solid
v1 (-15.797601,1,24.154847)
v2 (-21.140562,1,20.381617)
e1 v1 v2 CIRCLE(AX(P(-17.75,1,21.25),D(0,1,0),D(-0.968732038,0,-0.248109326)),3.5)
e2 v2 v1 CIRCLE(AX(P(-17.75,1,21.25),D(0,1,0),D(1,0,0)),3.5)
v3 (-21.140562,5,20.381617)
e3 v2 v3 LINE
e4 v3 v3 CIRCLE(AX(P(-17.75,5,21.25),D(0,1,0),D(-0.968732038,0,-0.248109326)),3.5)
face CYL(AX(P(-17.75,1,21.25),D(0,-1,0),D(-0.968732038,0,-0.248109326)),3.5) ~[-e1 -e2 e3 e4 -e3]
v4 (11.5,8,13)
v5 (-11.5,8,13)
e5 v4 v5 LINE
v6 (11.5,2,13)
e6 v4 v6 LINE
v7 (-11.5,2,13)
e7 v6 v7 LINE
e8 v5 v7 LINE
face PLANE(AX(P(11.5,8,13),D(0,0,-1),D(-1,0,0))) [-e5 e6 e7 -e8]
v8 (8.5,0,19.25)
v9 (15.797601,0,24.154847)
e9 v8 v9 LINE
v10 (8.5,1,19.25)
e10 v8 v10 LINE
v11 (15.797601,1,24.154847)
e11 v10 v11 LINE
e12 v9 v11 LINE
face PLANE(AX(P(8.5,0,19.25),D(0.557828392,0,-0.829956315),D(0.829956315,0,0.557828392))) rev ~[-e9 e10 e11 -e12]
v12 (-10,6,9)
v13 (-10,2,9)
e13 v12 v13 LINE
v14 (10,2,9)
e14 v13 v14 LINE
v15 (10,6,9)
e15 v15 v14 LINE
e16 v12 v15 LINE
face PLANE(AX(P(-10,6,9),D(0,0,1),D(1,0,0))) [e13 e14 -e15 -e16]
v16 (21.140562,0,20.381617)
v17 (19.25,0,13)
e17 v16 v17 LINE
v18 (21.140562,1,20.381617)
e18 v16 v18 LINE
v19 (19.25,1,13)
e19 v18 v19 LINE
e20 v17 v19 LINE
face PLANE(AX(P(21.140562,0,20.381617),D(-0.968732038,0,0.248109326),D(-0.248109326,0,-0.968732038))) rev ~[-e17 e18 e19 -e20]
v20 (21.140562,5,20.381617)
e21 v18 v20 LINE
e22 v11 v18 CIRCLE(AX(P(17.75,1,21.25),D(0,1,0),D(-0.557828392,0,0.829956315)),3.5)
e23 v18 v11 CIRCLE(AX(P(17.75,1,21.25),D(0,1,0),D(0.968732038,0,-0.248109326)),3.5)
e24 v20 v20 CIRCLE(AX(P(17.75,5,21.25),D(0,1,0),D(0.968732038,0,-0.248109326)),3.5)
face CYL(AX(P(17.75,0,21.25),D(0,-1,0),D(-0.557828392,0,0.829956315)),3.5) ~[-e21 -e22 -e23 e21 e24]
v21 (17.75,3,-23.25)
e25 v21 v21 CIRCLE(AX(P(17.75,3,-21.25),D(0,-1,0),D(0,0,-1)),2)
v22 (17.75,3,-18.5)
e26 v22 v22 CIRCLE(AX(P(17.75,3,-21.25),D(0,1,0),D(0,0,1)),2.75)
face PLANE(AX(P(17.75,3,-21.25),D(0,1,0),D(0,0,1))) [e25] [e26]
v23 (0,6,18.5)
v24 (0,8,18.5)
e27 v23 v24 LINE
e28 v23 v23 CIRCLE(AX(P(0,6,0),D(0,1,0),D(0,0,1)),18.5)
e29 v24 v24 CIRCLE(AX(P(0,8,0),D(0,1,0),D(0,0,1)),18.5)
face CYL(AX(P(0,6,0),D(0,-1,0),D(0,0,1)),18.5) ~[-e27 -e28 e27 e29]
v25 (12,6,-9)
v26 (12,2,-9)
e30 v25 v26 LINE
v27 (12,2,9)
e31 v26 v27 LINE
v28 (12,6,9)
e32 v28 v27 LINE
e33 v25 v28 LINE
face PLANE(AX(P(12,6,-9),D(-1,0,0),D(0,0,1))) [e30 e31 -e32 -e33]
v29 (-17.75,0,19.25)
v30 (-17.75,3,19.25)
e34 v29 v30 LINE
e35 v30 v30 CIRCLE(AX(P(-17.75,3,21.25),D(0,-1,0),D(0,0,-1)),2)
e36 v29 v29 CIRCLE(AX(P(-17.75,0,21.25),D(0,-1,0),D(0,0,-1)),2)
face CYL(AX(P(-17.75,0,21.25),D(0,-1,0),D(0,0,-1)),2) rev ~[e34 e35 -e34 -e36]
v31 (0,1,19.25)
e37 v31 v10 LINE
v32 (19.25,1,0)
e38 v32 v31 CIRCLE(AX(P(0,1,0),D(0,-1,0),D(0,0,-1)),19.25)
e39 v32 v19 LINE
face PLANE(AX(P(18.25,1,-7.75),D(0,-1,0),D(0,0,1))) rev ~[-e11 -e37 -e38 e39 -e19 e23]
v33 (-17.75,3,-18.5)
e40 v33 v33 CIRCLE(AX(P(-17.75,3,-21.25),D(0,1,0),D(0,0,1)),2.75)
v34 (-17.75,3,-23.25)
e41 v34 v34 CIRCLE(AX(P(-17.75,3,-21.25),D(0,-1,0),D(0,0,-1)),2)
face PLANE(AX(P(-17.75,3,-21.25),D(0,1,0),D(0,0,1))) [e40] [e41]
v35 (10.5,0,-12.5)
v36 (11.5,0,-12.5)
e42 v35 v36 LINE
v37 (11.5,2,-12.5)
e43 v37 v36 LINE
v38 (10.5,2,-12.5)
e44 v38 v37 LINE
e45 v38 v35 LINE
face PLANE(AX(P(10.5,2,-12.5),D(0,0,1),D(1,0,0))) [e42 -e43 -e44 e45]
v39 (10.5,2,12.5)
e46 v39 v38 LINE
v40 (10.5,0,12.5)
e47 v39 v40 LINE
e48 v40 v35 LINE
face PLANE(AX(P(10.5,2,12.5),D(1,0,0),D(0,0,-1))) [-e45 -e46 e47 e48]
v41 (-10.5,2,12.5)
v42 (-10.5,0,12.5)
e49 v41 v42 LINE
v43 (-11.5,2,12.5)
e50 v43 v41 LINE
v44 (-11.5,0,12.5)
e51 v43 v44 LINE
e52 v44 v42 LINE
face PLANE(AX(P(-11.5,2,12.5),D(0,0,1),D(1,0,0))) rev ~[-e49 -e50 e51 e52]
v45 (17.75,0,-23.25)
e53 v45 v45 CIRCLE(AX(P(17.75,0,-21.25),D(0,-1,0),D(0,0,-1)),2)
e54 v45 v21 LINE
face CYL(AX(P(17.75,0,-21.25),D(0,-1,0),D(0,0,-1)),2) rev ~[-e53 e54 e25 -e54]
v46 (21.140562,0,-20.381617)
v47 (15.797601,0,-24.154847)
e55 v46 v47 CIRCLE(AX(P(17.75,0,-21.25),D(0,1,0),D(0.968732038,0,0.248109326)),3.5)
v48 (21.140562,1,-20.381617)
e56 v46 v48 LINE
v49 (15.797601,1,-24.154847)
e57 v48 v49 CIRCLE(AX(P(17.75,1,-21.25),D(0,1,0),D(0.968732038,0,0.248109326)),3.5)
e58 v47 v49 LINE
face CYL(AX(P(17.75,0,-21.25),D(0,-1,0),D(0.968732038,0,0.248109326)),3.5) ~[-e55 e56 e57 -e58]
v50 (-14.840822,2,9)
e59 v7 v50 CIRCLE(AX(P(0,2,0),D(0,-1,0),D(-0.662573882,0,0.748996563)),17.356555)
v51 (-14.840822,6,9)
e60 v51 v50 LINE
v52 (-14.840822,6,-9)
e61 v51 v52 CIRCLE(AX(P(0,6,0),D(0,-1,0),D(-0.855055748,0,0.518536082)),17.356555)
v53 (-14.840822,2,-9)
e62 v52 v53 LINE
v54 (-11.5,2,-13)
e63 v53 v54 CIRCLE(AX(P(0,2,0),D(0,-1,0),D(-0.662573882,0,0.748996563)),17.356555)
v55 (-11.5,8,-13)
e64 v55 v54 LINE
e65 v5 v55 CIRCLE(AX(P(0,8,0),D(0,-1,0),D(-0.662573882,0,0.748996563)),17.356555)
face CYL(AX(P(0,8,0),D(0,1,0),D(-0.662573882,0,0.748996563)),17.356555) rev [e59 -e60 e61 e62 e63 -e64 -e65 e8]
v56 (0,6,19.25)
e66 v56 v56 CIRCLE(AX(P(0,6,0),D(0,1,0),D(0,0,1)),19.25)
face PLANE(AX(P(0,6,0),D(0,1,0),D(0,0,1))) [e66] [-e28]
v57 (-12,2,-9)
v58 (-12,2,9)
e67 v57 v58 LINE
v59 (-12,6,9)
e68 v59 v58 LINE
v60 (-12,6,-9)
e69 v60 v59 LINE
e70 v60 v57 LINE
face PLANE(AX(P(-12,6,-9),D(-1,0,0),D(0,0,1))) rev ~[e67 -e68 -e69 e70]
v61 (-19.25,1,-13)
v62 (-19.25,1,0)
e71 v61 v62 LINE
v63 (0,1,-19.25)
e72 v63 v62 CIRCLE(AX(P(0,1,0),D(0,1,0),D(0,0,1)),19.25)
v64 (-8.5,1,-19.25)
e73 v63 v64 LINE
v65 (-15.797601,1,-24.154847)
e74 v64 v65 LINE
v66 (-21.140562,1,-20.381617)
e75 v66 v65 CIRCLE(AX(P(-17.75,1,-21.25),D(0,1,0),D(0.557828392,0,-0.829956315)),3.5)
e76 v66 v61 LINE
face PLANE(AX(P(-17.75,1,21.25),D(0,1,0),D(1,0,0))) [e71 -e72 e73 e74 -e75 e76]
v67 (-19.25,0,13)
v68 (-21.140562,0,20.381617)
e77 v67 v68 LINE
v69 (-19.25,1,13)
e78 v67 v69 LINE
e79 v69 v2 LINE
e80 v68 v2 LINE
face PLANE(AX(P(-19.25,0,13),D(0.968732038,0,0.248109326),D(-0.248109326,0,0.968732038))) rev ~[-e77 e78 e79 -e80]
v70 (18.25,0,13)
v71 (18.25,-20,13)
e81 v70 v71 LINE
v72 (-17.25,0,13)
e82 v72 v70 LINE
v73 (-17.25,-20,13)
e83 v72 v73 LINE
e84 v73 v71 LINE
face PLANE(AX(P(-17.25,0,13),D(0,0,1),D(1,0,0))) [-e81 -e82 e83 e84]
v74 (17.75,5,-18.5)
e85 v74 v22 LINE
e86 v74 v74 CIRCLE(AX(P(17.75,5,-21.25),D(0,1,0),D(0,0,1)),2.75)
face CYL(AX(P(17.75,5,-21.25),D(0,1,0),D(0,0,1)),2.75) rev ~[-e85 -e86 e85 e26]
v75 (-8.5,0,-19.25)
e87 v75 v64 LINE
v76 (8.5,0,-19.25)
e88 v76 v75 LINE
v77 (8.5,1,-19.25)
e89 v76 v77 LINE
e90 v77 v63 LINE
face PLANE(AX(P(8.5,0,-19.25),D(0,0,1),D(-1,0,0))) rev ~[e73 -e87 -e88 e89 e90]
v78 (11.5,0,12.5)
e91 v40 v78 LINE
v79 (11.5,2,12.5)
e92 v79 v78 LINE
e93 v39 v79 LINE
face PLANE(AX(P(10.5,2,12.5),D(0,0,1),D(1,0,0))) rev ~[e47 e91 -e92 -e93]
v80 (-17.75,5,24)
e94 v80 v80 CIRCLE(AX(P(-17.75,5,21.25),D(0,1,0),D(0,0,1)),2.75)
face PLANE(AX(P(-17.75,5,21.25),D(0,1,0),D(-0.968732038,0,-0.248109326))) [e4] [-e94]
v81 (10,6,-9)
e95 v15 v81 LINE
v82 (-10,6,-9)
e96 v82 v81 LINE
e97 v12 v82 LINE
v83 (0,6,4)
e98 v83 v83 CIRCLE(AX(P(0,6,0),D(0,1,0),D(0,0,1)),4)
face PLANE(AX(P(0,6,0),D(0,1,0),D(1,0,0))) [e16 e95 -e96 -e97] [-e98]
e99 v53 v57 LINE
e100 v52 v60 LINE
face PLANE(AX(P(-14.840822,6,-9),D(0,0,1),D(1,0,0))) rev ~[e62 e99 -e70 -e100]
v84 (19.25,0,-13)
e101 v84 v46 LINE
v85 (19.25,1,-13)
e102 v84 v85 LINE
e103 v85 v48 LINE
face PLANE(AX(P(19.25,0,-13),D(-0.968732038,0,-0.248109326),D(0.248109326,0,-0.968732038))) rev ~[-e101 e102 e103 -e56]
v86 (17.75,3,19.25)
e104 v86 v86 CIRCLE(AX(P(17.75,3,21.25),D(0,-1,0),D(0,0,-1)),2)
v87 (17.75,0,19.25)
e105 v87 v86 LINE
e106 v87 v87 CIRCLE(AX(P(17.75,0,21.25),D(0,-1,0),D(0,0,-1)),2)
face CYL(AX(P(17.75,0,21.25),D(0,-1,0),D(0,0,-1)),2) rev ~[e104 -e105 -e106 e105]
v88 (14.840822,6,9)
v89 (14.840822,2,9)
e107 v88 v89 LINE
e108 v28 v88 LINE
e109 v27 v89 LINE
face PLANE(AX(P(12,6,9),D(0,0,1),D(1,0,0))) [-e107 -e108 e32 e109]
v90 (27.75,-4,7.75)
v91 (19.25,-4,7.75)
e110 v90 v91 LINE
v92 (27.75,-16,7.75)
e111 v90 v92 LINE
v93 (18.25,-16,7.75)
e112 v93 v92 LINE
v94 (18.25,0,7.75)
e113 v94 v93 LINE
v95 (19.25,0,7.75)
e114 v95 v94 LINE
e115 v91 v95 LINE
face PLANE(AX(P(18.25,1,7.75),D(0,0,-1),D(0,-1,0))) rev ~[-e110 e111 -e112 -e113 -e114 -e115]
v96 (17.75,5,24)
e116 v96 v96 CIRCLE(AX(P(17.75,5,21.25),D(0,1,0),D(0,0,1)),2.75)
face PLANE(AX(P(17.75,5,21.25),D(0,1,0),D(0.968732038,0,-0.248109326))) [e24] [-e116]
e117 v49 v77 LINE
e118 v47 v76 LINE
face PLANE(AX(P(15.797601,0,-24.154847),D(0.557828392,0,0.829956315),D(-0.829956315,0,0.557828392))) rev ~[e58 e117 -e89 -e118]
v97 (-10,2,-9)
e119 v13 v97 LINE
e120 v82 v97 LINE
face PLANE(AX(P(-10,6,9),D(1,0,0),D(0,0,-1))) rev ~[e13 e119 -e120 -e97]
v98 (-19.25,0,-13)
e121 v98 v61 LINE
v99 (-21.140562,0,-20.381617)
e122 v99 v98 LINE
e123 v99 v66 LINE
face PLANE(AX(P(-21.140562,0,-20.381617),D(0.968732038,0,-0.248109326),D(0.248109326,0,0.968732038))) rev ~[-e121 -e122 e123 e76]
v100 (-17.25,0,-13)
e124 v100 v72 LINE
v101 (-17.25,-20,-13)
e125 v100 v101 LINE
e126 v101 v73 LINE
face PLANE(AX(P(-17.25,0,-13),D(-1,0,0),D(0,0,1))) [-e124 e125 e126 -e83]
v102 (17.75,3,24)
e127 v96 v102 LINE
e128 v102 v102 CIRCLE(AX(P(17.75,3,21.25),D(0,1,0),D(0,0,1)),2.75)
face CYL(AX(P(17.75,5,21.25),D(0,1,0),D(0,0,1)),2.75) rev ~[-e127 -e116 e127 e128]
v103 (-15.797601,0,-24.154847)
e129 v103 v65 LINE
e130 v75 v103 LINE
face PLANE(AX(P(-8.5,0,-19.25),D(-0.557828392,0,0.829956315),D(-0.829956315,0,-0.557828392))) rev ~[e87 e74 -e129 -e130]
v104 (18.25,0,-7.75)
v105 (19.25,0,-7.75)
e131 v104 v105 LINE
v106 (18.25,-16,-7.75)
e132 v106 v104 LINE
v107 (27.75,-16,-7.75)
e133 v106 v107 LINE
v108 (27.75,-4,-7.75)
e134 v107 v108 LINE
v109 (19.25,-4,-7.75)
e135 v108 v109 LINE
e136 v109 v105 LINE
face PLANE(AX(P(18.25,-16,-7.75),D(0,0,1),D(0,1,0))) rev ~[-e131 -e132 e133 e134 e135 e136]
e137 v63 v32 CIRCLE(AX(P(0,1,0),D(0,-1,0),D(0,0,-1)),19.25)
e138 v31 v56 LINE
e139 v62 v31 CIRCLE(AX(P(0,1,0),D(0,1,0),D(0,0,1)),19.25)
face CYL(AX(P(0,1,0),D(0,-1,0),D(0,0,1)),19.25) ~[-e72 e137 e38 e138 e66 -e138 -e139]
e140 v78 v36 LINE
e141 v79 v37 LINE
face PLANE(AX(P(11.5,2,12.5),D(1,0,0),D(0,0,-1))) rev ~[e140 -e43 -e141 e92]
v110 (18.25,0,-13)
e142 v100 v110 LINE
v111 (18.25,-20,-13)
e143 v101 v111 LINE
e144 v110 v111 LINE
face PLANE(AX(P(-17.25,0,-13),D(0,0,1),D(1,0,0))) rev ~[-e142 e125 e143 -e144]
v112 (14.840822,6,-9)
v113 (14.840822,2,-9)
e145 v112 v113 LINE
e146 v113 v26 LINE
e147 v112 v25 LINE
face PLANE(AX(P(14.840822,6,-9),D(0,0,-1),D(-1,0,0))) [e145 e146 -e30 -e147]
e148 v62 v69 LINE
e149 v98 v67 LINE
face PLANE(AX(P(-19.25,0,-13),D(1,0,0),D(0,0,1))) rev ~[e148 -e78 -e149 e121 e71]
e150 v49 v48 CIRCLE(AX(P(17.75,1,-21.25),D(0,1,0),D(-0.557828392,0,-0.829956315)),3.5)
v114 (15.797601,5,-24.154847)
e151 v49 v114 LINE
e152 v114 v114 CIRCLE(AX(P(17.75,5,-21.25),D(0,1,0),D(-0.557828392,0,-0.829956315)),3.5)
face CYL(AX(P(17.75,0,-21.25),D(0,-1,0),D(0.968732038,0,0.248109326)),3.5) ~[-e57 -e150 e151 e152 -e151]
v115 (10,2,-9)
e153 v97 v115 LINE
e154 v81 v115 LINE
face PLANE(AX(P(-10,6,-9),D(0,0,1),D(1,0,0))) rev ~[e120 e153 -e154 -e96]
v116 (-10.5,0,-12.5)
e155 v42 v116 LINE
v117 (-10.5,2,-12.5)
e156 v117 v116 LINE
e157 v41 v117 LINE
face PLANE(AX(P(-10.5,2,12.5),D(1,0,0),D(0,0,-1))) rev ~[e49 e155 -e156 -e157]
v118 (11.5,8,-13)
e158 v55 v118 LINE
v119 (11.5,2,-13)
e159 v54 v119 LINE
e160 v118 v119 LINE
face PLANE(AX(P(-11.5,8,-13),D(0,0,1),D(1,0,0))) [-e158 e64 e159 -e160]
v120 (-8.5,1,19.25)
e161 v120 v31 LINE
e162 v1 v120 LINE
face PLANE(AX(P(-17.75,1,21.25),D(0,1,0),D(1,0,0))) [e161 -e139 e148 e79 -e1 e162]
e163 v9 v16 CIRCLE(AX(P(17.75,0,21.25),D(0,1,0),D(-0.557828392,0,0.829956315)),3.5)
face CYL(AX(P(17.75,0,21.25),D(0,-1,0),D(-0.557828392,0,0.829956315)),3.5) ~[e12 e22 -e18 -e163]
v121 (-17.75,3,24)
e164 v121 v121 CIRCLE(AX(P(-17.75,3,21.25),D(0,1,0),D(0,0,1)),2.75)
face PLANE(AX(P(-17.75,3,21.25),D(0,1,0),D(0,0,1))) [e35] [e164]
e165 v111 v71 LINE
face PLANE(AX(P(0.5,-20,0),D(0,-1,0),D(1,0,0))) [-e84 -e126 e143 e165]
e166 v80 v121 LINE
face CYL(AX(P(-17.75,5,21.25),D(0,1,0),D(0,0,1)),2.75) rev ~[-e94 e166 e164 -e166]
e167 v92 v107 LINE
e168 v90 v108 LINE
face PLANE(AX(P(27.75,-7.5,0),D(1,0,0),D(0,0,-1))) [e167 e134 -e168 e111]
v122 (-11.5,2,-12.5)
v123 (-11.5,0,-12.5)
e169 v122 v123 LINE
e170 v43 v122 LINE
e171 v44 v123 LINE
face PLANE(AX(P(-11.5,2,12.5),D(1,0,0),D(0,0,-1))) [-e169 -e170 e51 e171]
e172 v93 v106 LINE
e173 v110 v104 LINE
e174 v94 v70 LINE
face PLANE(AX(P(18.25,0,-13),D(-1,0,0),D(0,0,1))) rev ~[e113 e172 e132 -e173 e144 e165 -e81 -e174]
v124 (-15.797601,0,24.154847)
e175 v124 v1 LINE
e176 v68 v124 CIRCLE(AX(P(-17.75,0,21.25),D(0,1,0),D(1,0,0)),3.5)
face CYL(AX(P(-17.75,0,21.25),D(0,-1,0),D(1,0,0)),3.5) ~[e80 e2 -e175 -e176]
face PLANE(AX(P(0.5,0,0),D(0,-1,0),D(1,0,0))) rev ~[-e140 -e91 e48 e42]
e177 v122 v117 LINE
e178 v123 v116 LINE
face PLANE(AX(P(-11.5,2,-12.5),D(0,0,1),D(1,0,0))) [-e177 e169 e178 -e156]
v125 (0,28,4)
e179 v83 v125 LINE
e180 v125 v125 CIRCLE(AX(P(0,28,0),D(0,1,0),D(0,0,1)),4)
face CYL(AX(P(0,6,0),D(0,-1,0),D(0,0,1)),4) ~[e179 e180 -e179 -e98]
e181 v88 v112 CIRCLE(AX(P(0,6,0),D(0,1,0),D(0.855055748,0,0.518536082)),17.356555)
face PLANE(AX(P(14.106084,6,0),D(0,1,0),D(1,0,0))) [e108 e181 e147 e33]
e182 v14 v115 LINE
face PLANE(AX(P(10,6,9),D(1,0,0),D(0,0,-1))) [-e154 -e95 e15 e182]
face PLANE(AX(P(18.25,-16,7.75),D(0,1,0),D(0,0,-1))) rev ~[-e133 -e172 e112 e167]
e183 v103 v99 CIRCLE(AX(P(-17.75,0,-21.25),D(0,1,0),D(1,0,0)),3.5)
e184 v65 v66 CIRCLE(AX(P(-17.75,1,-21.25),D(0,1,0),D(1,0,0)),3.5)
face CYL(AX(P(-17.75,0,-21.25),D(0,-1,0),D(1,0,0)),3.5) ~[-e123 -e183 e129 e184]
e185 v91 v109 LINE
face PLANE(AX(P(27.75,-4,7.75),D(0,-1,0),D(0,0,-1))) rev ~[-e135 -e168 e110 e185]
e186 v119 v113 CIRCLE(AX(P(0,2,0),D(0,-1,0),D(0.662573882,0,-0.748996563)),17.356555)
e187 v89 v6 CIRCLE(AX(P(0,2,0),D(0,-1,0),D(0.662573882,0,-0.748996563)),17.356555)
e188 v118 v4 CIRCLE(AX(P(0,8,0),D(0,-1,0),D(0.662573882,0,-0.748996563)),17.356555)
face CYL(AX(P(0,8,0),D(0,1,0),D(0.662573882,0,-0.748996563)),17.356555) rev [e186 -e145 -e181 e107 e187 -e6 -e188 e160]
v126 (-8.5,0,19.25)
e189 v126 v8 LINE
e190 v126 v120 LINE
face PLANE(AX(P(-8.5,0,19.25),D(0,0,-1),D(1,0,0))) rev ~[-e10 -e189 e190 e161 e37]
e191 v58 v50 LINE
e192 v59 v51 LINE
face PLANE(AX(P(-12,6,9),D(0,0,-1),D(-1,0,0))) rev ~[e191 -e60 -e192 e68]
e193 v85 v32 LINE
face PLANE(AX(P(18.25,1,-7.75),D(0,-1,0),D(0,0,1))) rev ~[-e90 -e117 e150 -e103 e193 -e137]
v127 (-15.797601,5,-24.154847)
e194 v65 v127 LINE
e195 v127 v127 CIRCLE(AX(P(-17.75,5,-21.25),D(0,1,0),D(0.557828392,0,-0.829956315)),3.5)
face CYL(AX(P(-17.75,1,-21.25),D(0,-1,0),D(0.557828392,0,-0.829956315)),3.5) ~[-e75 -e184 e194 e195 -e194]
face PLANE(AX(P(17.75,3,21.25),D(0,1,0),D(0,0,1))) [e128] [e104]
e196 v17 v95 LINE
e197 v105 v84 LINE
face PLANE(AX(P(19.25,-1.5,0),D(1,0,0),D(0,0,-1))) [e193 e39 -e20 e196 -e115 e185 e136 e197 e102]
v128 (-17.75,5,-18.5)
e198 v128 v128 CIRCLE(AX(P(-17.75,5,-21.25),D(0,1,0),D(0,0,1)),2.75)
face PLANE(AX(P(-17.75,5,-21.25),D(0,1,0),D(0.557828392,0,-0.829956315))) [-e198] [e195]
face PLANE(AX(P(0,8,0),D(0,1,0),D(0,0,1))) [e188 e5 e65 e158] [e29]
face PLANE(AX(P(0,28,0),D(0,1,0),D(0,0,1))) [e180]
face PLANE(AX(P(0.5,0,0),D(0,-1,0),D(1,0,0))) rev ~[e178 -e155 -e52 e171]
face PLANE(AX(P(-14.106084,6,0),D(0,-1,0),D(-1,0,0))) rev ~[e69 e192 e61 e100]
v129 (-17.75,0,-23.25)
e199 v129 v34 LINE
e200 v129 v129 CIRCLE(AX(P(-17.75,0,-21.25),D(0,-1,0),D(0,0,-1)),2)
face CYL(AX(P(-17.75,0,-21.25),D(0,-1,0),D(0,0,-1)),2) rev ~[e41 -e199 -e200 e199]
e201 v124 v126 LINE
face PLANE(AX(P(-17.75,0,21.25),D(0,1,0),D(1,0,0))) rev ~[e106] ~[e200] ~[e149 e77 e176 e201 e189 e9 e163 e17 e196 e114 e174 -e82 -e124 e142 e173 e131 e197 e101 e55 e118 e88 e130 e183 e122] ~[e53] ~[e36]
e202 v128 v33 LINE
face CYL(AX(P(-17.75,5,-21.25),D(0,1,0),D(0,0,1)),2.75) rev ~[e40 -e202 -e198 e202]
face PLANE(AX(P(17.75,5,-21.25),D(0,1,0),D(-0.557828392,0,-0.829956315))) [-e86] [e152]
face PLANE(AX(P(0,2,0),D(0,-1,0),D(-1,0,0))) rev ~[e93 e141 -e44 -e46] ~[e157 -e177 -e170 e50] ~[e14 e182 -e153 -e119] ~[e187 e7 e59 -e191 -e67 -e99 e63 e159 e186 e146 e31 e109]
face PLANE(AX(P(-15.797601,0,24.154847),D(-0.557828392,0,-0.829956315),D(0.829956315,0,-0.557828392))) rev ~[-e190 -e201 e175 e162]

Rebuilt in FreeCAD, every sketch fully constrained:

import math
import FreeCAD as App
import Part
import Sketcher
from FreeCAD import Vector
Q = App.Units.Quantity

doc = App.newDocument("Part")
body = doc.addObject("PartDesign::Body", "Body")

# Sketch on XZ plane
sketch1 = doc.addObject("Sketcher::SketchObject", "Sketch")
body.addObject(sketch1)
sketch1.AttachmentSupport = (doc.XZ_Plane, [""])
sketch1.MapMode = "FlatFace"
sketch1.addGeometry([
    Part.ArcOfCircle(Part.Circle(Vector(-17.8, 21.2, 0), Vector(0, 0, 1), 3.5), math.radians(56), math.radians(194)),  # 0
    Part.LineSegment(Vector(-15.8, 24.2, 0), Vector(-8.5, 19.2, 0)),  # 1
    Part.LineSegment(Vector(-8.5, 19.2, 0), Vector(8.5, 19.2, 0)),  # 2
    Part.LineSegment(Vector(8.5, 19.2, 0), Vector(15.8, 24.2, 0)),  # 3
    Part.ArcOfCircle(Part.Circle(Vector(17.8, 21.2, 0), Vector(0, 0, 1), 3.5), math.radians(-14), math.radians(124)),  # 4
    Part.LineSegment(Vector(21.1, 20.4, 0), Vector(19.2, 13, 0)),  # 5
    Part.LineSegment(Vector(19.2, 13, 0), Vector(19.2, -13, 0)),  # 6
    Part.LineSegment(Vector(19.2, -13, 0), Vector(21.1, -20.4, 0)),  # 7
    Part.ArcOfCircle(Part.Circle(Vector(17.8, -21.2, 0), Vector(0, 0, 1), 3.5), math.radians(-124), math.radians(14)),  # 8
    Part.LineSegment(Vector(15.8, -24.2, 0), Vector(8.5, -19.2, 0)),  # 9
    Part.LineSegment(Vector(8.5, -19.2, 0), Vector(-8.5, -19.2, 0)),  # 10
    Part.LineSegment(Vector(-8.5, -19.2, 0), Vector(-15.8, -24.2, 0)),  # 11
    Part.ArcOfCircle(Part.Circle(Vector(-17.8, -21.2, 0), Vector(0, 0, 1), 3.5), math.radians(166), math.radians(304)),  # 12
    Part.LineSegment(Vector(-21.1, -20.4, 0), Vector(-19.2, -13, 0)),  # 13
    Part.LineSegment(Vector(-19.2, -13, 0), Vector(-19.2, 13, 0)),  # 14
    Part.LineSegment(Vector(-19.2, 13, 0), Vector(-21.1, 20.4, 0)),  # 15
], False)
sketch1.addConstraint([
    Sketcher.Constraint("Tangent", 0, 1, 1, 1),
    Sketcher.Constraint("Coincident", 1, 2, 2, 1),
    Sketcher.Constraint("Coincident", 2, 2, 3, 1),
    Sketcher.Constraint("Tangent", 3, 2, 4, 2),
    Sketcher.Constraint("Tangent", 4, 1, 5, 1),
    Sketcher.Constraint("Coincident", 5, 2, 6, 1),
    Sketcher.Constraint("Coincident", 6, 2, 7, 1),
    Sketcher.Constraint("Tangent", 7, 2, 8, 2),
    Sketcher.Constraint("Tangent", 8, 1, 9, 1),
    Sketcher.Constraint("Coincident", 9, 2, 10, 1),
    Sketcher.Constraint("Coincident", 10, 2, 11, 1),
    Sketcher.Constraint("Tangent", 11, 2, 12, 2),
    Sketcher.Constraint("Tangent", 12, 1, 13, 1),
    Sketcher.Constraint("Coincident", 13, 2, 14, 1),
    Sketcher.Constraint("Coincident", 14, 2, 15, 1),
    Sketcher.Constraint("Tangent", 15, 2, 0, 2),
    Sketcher.Constraint("Horizontal", 2),
    Sketcher.Constraint("Vertical", 6),
    Sketcher.Constraint("Horizontal", 10),
    Sketcher.Constraint("Vertical", 14),
    Sketcher.Constraint("Equal", 0, 4),
    Sketcher.Constraint("Equal", 4, 8),
    Sketcher.Constraint("Equal", 8, 12),
    Sketcher.Constraint("Symmetric", 0, 3, 8, 3, -1, 1),
    Sketcher.Constraint("Symmetric", 4, 3, 12, 3, -1, 1),
    Sketcher.Constraint("Symmetric", 1, 2, 9, 2, -1, 1),
    Sketcher.Constraint("Symmetric", 5, 2, 13, 2, -1, 1),
    Sketcher.Constraint("Symmetric", 0, 3, 4, 3, -2),
    Sketcher.Constraint("Parallel", 3, 11),
    Sketcher.Constraint("Parallel", 7, 15),
    Sketcher.Constraint("Horizontal", 0, 1, 3, 2),
    Sketcher.Constraint("Horizontal", 7, 2, 12, 1),
    Sketcher.Constraint("Radius", 0, Q("3.5 mm")),
    Sketcher.Constraint("DistanceX", 2, 1, 2, 2, Q("17 mm")),
    Sketcher.Constraint("DistanceY", 6, 2, 6, 1, Q("26 mm")),
    Sketcher.Constraint("DistanceY", 1, 2, 0, 3, Q("2 mm")),
    Sketcher.Constraint("DistanceX", 0, 3, 4, 3, Q("35.5 mm")),
    Sketcher.Constraint("DistanceY", 8, 3, 4, 3, Q("42.5 mm")),
    Sketcher.Constraint("DistanceX", 4, 3, 5, 2, Q("1.5 mm")),
])
pad1 = doc.addObject("PartDesign::Pad", "Pad")
body.addObject(pad1)
pad1.Profile = sketch1
pad1.Length = 1
pad1.Reversed = True

# Sketch on XZ plane
sketch2 = doc.addObject("Sketcher::SketchObject", "Sketch001")
body.addObject(sketch2)
sketch2.AttachmentSupport = (doc.XZ_Plane, [""])
sketch2.MapMode = "FlatFace"
sketch2.AttachmentOffset = App.Placement(Vector(0, 0, -1), App.Rotation())
sketch2.addGeometry(Part.Circle(Vector(0, 0, 0), Vector(0, 0, 1), 19), False)
sketch2.addConstraint([
    Sketcher.Constraint("Coincident", 0, 3, -1, 1),
    Sketcher.Constraint("Diameter", 0, Q("38.5 mm")),
])
pad2 = doc.addObject("PartDesign::Pad", "Pad001")
body.addObject(pad2)
pad2.Profile = sketch2
pad2.Length = 5
pad2.Reversed = True

# Sketch on XZ plane
sketch3 = doc.addObject("Sketcher::SketchObject", "Sketch002")
body.addObject(sketch3)
sketch3.AttachmentSupport = (doc.XZ_Plane, [""])
sketch3.MapMode = "FlatFace"
sketch3.AttachmentOffset = App.Placement(Vector(0, 0, -6), App.Rotation())
sketch3.addGeometry(Part.Circle(Vector(0, 0, 0), Vector(0, 0, 1), 18), False)
sketch3.addConstraint([
    Sketcher.Constraint("Coincident", 0, 3, -1, 1),
    Sketcher.Constraint("Diameter", 0, Q("37 mm")),
])
pad3 = doc.addObject("PartDesign::Pad", "Pad002")
body.addObject(pad3)
pad3.Profile = sketch3
pad3.Length = 2
pad3.Reversed = True

# Sketch on XZ plane
sketch4 = doc.addObject("Sketcher::SketchObject", "Sketch003")
body.addObject(sketch4)
sketch4.AttachmentSupport = (doc.XZ_Plane, [""])
sketch4.MapMode = "FlatFace"
sketch4.AttachmentOffset = App.Placement(Vector(0, 0, -8), App.Rotation())
sketch4.addGeometry([
    Part.LineSegment(Vector(12, -13, 0), Vector(-12, -13, 0)),
    Part.ArcOfCircle(Part.Circle(Vector(0, 0, 0), Vector(0, 0, 1), 17), math.radians(131), math.radians(229)),
    Part.LineSegment(Vector(-12, 13, 0), Vector(12, 13, 0)),
    Part.ArcOfCircle(Part.Circle(Vector(0, 0, 0), Vector(0, 0, 1), 17), math.radians(-49), math.radians(49)),
], False)
sketch4.addConstraint([
    Sketcher.Constraint("Coincident", 0, 2, 1, 2),
    Sketcher.Constraint("Coincident", 1, 1, 2, 1),
    Sketcher.Constraint("Coincident", 2, 2, 3, 2),
    Sketcher.Constraint("Coincident", 3, 1, 0, 1),
    Sketcher.Constraint("Horizontal", 0),
    Sketcher.Constraint("Horizontal", 2),
    Sketcher.Constraint("Coincident", 1, 3, -1, 1),
    Sketcher.Constraint("Coincident", 3, 3, -1, 1),
    Sketcher.Constraint("Equal", 1, 3),
    Sketcher.Constraint("Vertical", 0, 2, 1, 1),
    Sketcher.Constraint("DistanceX", 0, 2, 0, 1, Q("23 mm")),
    Sketcher.Constraint("DistanceY", 0, 2, -1, 1, Q("13 mm")),
])
pocket1 = doc.addObject("PartDesign::Pocket", "Pocket")
body.addObject(pocket1)
pocket1.Profile = sketch4
pocket1.Length = 6
pocket1.Reversed = True

# Sketch on XZ plane
sketch5 = doc.addObject("Sketcher::SketchObject", "Sketch004")
body.addObject(sketch5)
sketch5.AttachmentSupport = (doc.XZ_Plane, [""])
sketch5.MapMode = "FlatFace"
sketch5.AttachmentOffset = App.Placement(Vector(0, 0, -2), App.Rotation())
sketch5.addGeometry([
    Part.LineSegment(Vector(-11.5, -12.5, 0), Vector(-11.5, 12.5, 0)),  # 0
    Part.LineSegment(Vector(-11.5, 12.5, 0), Vector(-10.5, 12.5, 0)),  # 1
    Part.LineSegment(Vector(-10.5, 12.5, 0), Vector(-10.5, -12.5, 0)),  # 2
    Part.LineSegment(Vector(-10.5, -12.5, 0), Vector(-11.5, -12.5, 0)),  # 3
    Part.LineSegment(Vector(10.5, -12.5, 0), Vector(10.5, 12.5, 0)),  # 4
    Part.LineSegment(Vector(10.5, 12.5, 0), Vector(11.5, 12.5, 0)),  # 5
    Part.LineSegment(Vector(11.5, 12.5, 0), Vector(11.5, -12.5, 0)),  # 6
    Part.LineSegment(Vector(11.5, -12.5, 0), Vector(10.5, -12.5, 0)),  # 7
], False)
sketch5.addConstraint([
    Sketcher.Constraint("Coincident", 0, 2, 1, 1),
    Sketcher.Constraint("Coincident", 1, 2, 2, 1),
    Sketcher.Constraint("Coincident", 2, 2, 3, 1),
    Sketcher.Constraint("Coincident", 3, 2, 0, 1),
    Sketcher.Constraint("Coincident", 4, 2, 5, 1),
    Sketcher.Constraint("Coincident", 5, 2, 6, 1),
    Sketcher.Constraint("Coincident", 6, 2, 7, 1),
    Sketcher.Constraint("Coincident", 7, 2, 4, 1),
    Sketcher.Constraint("Vertical", 0),
    Sketcher.Constraint("Horizontal", 1),
    Sketcher.Constraint("Vertical", 2),
    Sketcher.Constraint("Horizontal", 3),
    Sketcher.Constraint("Vertical", 4),
    Sketcher.Constraint("Horizontal", 5),
    Sketcher.Constraint("Vertical", 6),
    Sketcher.Constraint("Horizontal", 7),
    Sketcher.Constraint("Symmetric", 2, 2, 4, 2, -1, 1),
    Sketcher.Constraint("Symmetric", 0, 2, 6, 2, -1, 1),
    Sketcher.Constraint("Horizontal", 1, 2, 4, 2),
    Sketcher.Constraint("DistanceX", 1, 1, 1, 2, Q("1 mm")),
    Sketcher.Constraint("DistanceY", 0, 1, 0, 2, Q("25 mm")),
    Sketcher.Constraint("DistanceX", 1, 2, 4, 2, Q("21 mm")),
])
pocket2 = doc.addObject("PartDesign::Pocket", "Pocket001")
body.addObject(pocket2)
pocket2.Profile = sketch5
pocket2.Length = 6
pocket2.Reversed = True

# Sketch on XZ plane
sketch6 = doc.addObject("Sketcher::SketchObject", "Sketch005")
body.addObject(sketch6)
sketch6.AttachmentSupport = (doc.XZ_Plane, [""])
sketch6.MapMode = "FlatFace"
sketch6.AttachmentOffset = App.Placement(Vector(0, 0, -6), App.Rotation())
sketch6.addGeometry([
    Part.LineSegment(Vector(-10, -9, 0), Vector(-10, 9, 0)),  # 0
    Part.LineSegment(Vector(-10, 9, 0), Vector(10, 9, 0)),  # 1
    Part.LineSegment(Vector(10, 9, 0), Vector(10, -9, 0)),  # 2
    Part.LineSegment(Vector(10, -9, 0), Vector(-10, -9, 0)),  # 3
    Part.LineSegment(Vector(-12, -9, 0), Vector(-14.8, -9, 0)),  # 4
    Part.ArcOfCircle(Part.Circle(Vector(0, 0, 0), Vector(0, 0, 1), 17.4), math.radians(149), math.radians(211)),  # 5
    Part.LineSegment(Vector(-14.8, 9, 0), Vector(-12, 9, 0)),  # 6
    Part.LineSegment(Vector(-12, 9, 0), Vector(-12, -9, 0)),  # 7
    Part.LineSegment(Vector(12, 9, 0), Vector(14.8, 9, 0)),  # 8
    Part.ArcOfCircle(Part.Circle(Vector(0, 0, 0), Vector(0, 0, 1), 17.4), math.radians(-31), math.radians(31)),  # 9
    Part.LineSegment(Vector(14.8, -9, 0), Vector(12, -9, 0)),  # 10
    Part.LineSegment(Vector(12, -9, 0), Vector(12, 9, 0)),  # 11
], False)
sketch6.addConstraint([
    Sketcher.Constraint("Coincident", 0, 2, 1, 1),
    Sketcher.Constraint("Coincident", 1, 2, 2, 1),
    Sketcher.Constraint("Coincident", 2, 2, 3, 1),
    Sketcher.Constraint("Coincident", 3, 2, 0, 1),
    Sketcher.Constraint("Coincident", 4, 2, 5, 2),
    Sketcher.Constraint("Coincident", 5, 1, 6, 1),
    Sketcher.Constraint("Coincident", 6, 2, 7, 1),
    Sketcher.Constraint("Coincident", 7, 2, 4, 1),
    Sketcher.Constraint("Coincident", 8, 2, 9, 2),
    Sketcher.Constraint("Coincident", 9, 1, 10, 1),
    Sketcher.Constraint("Coincident", 10, 2, 11, 1),
    Sketcher.Constraint("Coincident", 11, 2, 8, 1),
    Sketcher.Constraint("Vertical", 0),
    Sketcher.Constraint("Horizontal", 1),
    Sketcher.Constraint("Vertical", 2),
    Sketcher.Constraint("Horizontal", 3),
    Sketcher.Constraint("Horizontal", 4),
    Sketcher.Constraint("Horizontal", 6),
    Sketcher.Constraint("Vertical", 7),
    Sketcher.Constraint("Horizontal", 8),
    Sketcher.Constraint("Horizontal", 10),
    Sketcher.Constraint("Vertical", 11),
    Sketcher.Constraint("Coincident", 5, 3, -1, 1),
    Sketcher.Constraint("Coincident", 9, 3, -1, 1),
    Sketcher.Constraint("Equal", 5, 9),
    Sketcher.Constraint("Symmetric", 0, 2, 2, 2, -1, 1),
    Sketcher.Constraint("Symmetric", 6, 2, 10, 2, -1, 1),
    Sketcher.Constraint("Horizontal", 3, 2, 4, 2),
    Sketcher.Constraint("Horizontal", 1, 2, 5, 1),
    Sketcher.Constraint("Horizontal", 6, 2, 8, 2),
    Sketcher.Constraint("DistanceX", 1, 1, 1, 2, Q("20 mm")),
    Sketcher.Constraint("DistanceY", 0, 1, 0, 2, Q("18 mm")),
    Sketcher.Constraint("DistanceX", 6, 2, -1, 1, Q("12 mm")),
    Sketcher.Constraint("Radius", 5, Q("17.356555 mm")),
])
pad4 = doc.addObject("PartDesign::Pad", "Pad003")
body.addObject(pad4)
pad4.Profile = sketch6
pad4.Length = 4

# Sketch on XZ plane
sketch7 = doc.addObject("Sketcher::SketchObject", "Sketch006")
body.addObject(sketch7)
sketch7.AttachmentSupport = (doc.XZ_Plane, [""])
sketch7.MapMode = "FlatFace"
sketch7.AttachmentOffset = App.Placement(Vector(0, 0, -6), App.Rotation())
sketch7.addGeometry(Part.Circle(Vector(0, 0, 0), Vector(0, 0, 1), 4), False)
sketch7.addConstraint([
    Sketcher.Constraint("Coincident", 0, 3, -1, 1),
    Sketcher.Constraint("Diameter", 0, Q("8 mm")),
])
pad5 = doc.addObject("PartDesign::Pad", "Pad004")
body.addObject(pad5)
pad5.Profile = sketch7
pad5.Length = 22
pad5.Reversed = True

# Sketch on XZ plane
sketch8 = doc.addObject("Sketcher::SketchObject", "Sketch007")
body.addObject(sketch8)
sketch8.AttachmentSupport = (doc.XZ_Plane, [""])
sketch8.MapMode = "FlatFace"
sketch8.AttachmentOffset = App.Placement(Vector(0, 0, -1), App.Rotation())
sketch8.addGeometry([
    Part.Circle(Vector(-17.8, -21.2, 0), Vector(0, 0, 1), 3.5),
    Part.Circle(Vector(17.8, -21.2, 0), Vector(0, 0, 1), 3.5),
    Part.Circle(Vector(17.8, 21.2, 0), Vector(0, 0, 1), 3.5),
    Part.Circle(Vector(-17.8, 21.2, 0), Vector(0, 0, 1), 3.5),
], False)
sketch8.addConstraint([
    Sketcher.Constraint("Equal", 0, 1),
    Sketcher.Constraint("Equal", 1, 2),
    Sketcher.Constraint("Equal", 2, 3),
    Sketcher.Constraint("Symmetric", 0, 3, 2, 3, -1, 1),
    Sketcher.Constraint("Symmetric", 1, 3, 3, 3, -1, 1),
    Sketcher.Constraint("Symmetric", 0, 3, 1, 3, -2),
    Sketcher.Constraint("Diameter", 0, Q("7 mm")),
    Sketcher.Constraint("DistanceX", 0, 3, 1, 3, Q("35.5 mm")),
    Sketcher.Constraint("DistanceY", 1, 3, 2, 3, Q("42.5 mm")),
])
pad6 = doc.addObject("PartDesign::Pad", "Pad005")
body.addObject(pad6)
pad6.Profile = sketch8
pad6.Length = 4
pad6.Reversed = True

# Sketch on XZ plane
sketch9 = doc.addObject("Sketcher::SketchObject", "Sketch008")
body.addObject(sketch9)
sketch9.AttachmentSupport = (doc.XZ_Plane, [""])
sketch9.MapMode = "FlatFace"
sketch9.AttachmentOffset = App.Placement(Vector(0, 0, -5), App.Rotation())
sketch9.addGeometry([
    Part.Circle(Vector(-17.8, -21.2, 0), Vector(0, 0, 1), 2.8),
    Part.Circle(Vector(17.8, -21.2, 0), Vector(0, 0, 1), 2.8),
    Part.Circle(Vector(17.8, 21.2, 0), Vector(0, 0, 1), 2.8),
    Part.Circle(Vector(-17.8, 21.2, 0), Vector(0, 0, 1), 2.8),
], False)
sketch9.addConstraint([
    Sketcher.Constraint("Equal", 0, 1),
    Sketcher.Constraint("Equal", 1, 2),
    Sketcher.Constraint("Equal", 2, 3),
    Sketcher.Constraint("Symmetric", 0, 3, 2, 3, -1, 1),
    Sketcher.Constraint("Symmetric", 1, 3, 3, 3, -1, 1),
    Sketcher.Constraint("Symmetric", 0, 3, 1, 3, -2),
    Sketcher.Constraint("Diameter", 0, Q("5.5 mm")),
    Sketcher.Constraint("DistanceX", 0, 3, 1, 3, Q("35.5 mm")),
    Sketcher.Constraint("DistanceY", 1, 3, 2, 3, Q("42.5 mm")),
])
pocket3 = doc.addObject("PartDesign::Pocket", "Pocket002")
body.addObject(pocket3)
pocket3.Profile = sketch9
pocket3.Length = 2
pocket3.Reversed = True

# Sketch on XZ plane
sketch10 = doc.addObject("Sketcher::SketchObject", "Sketch009")
body.addObject(sketch10)
sketch10.AttachmentSupport = (doc.XZ_Plane, [""])
sketch10.MapMode = "FlatFace"
sketch10.AttachmentOffset = App.Placement(Vector(0, 0, -3), App.Rotation())
sketch10.addGeometry([
    Part.Circle(Vector(-17.8, -21.2, 0), Vector(0, 0, 1), 1.5),
    Part.Circle(Vector(17.8, -21.2, 0), Vector(0, 0, 1), 1.5),
    Part.Circle(Vector(17.8, 21.2, 0), Vector(0, 0, 1), 1.5),
    Part.Circle(Vector(-17.8, 21.2, 0), Vector(0, 0, 1), 1.5),
], False)
sketch10.addConstraint([
    Sketcher.Constraint("Equal", 0, 1),
    Sketcher.Constraint("Equal", 1, 2),
    Sketcher.Constraint("Equal", 2, 3),
    Sketcher.Constraint("Symmetric", 0, 3, 2, 3, -1, 1),
    Sketcher.Constraint("Symmetric", 1, 3, 3, 3, -1, 1),
    Sketcher.Constraint("Symmetric", 0, 3, 1, 3, -2),
    Sketcher.Constraint("Diameter", 0, Q("3 mm")),
    Sketcher.Constraint("DistanceX", 0, 3, 1, 3, Q("35.5 mm")),
    Sketcher.Constraint("DistanceY", 1, 3, 2, 3, Q("42.5 mm")),
])
pocket4 = doc.addObject("PartDesign::Pocket", "Pocket003")
body.addObject(pocket4)
pocket4.Profile = sketch10
pocket4.Length = 7
pocket4.Reversed = True

# Sketch on XZ plane
sketch11 = doc.addObject("Sketcher::SketchObject", "Sketch010")
body.addObject(sketch11)
sketch11.AttachmentSupport = (doc.XZ_Plane, [""])
sketch11.MapMode = "FlatFace"
sketch11.addGeometry([
    Part.LineSegment(Vector(-17, 13, 0), Vector(-17, -13, 0)),
    Part.LineSegment(Vector(-17, -13, 0), Vector(18, -13, 0)),
    Part.LineSegment(Vector(18, -13, 0), Vector(18, 13, 0)),
    Part.LineSegment(Vector(18, 13, 0), Vector(-17, 13, 0)),
], False)
sketch11.addConstraint([
    Sketcher.Constraint("Coincident", 0, 2, 1, 1),
    Sketcher.Constraint("Coincident", 1, 2, 2, 1),
    Sketcher.Constraint("Coincident", 2, 2, 3, 1),
    Sketcher.Constraint("Coincident", 3, 2, 0, 1),
    Sketcher.Constraint("Vertical", 0),
    Sketcher.Constraint("Horizontal", 1),
    Sketcher.Constraint("Vertical", 2),
    Sketcher.Constraint("Horizontal", 3),
    Sketcher.Constraint("DistanceY", 0, 2, 0, 1, Q("26 mm")),
    Sketcher.Constraint("DistanceX", 1, 1, 1, 2, Q("35.5 mm")),
    Sketcher.Constraint("DistanceY", 0, 2, -1, 1, Q("13 mm")),
    Sketcher.Constraint("DistanceX", 0, 2, -1, 1, Q("17.25 mm")),
])
pad7 = doc.addObject("PartDesign::Pad", "Pad006")
body.addObject(pad7)
pad7.Profile = sketch11
pad7.Length = 20

# Sketch on YZ plane
sketch12 = doc.addObject("Sketcher::SketchObject", "Sketch011")
body.addObject(sketch12)
sketch12.AttachmentSupport = (doc.YZ_Plane, [""])
sketch12.MapMode = "FlatFace"
sketch12.AttachmentOffset = App.Placement(Vector(0, 0, 18.25), App.Rotation())
sketch12.addGeometry([
    Part.LineSegment(Vector(-16, 8, 0), Vector(-16, -8, 0)),
    Part.LineSegment(Vector(-16, -8, 0), Vector(1, -8, 0)),
    Part.LineSegment(Vector(1, -8, 0), Vector(1, 8, 0)),
    Part.LineSegment(Vector(1, 8, 0), Vector(-16, 8, 0)),
], False)
sketch12.addConstraint([
    Sketcher.Constraint("Coincident", 0, 2, 1, 1),
    Sketcher.Constraint("Coincident", 1, 2, 2, 1),
    Sketcher.Constraint("Coincident", 2, 2, 3, 1),
    Sketcher.Constraint("Coincident", 3, 2, 0, 1),
    Sketcher.Constraint("Vertical", 0),
    Sketcher.Constraint("Horizontal", 1),
    Sketcher.Constraint("Vertical", 2),
    Sketcher.Constraint("Horizontal", 3),
    Sketcher.Constraint("DistanceX", 1, 1, 1, 2, Q("17 mm")),
    Sketcher.Constraint("DistanceY", 0, 2, 0, 1, Q("15.5 mm")),
    Sketcher.Constraint("DistanceX", 0, 2, -1, 1, Q("16 mm")),
    Sketcher.Constraint("DistanceY", 0, 2, -1, 1, Q("7.75 mm")),
])
pad8 = doc.addObject("PartDesign::Pad", "Pad007")
body.addObject(pad8)
pad8.Profile = sketch12
pad8.Length = 9.5

# Sketch on YZ plane
sketch13 = doc.addObject("Sketcher::SketchObject", "Sketch012")
body.addObject(sketch13)
sketch13.AttachmentSupport = (doc.YZ_Plane, [""])
sketch13.MapMode = "FlatFace"
sketch13.AttachmentOffset = App.Placement(Vector(0, 0, 27.75), App.Rotation())
sketch13.addGeometry([
    Part.LineSegment(Vector(1, 8, 0), Vector(-4, 8, 0)),
    Part.LineSegment(Vector(-4, 8, 0), Vector(-4, -8, 0)),
    Part.LineSegment(Vector(-4, -8, 0), Vector(1, -8, 0)),
    Part.LineSegment(Vector(1, -8, 0), Vector(1, 8, 0)),
], False)
sketch13.addConstraint([
    Sketcher.Constraint("Coincident", 0, 2, 1, 1),
    Sketcher.Constraint("Coincident", 1, 2, 2, 1),
    Sketcher.Constraint("Coincident", 2, 2, 3, 1),
    Sketcher.Constraint("Coincident", 3, 2, 0, 1),
    Sketcher.Constraint("Horizontal", 0),
    Sketcher.Constraint("Vertical", 1),
    Sketcher.Constraint("Horizontal", 2),
    Sketcher.Constraint("Vertical", 3),
    Sketcher.Constraint("DistanceX", 0, 2, 0, 1, Q("5 mm")),
    Sketcher.Constraint("DistanceY", 1, 2, 1, 1, Q("15.5 mm")),
    Sketcher.Constraint("DistanceX", 0, 2, -1, 1, Q("4 mm")),
    Sketcher.Constraint("DistanceY", -1, 1, 0, 2, Q("7.75 mm")),
])
pocket5 = doc.addObject("PartDesign::Pocket", "Pocket004")
body.addObject(pocket5)
pocket5.Profile = sketch13
pocket5.Length = 8.5

# Sketch on XZ plane
sketch14 = doc.addObject("Sketcher::SketchObject", "Sketch013")
body.addObject(sketch14)
sketch14.AttachmentSupport = (doc.XZ_Plane, [""])
sketch14.MapMode = "FlatFace"
sketch14.addGeometry([
    Part.Circle(Vector(-17.8, 21.2, 0), Vector(0, 0, 1), 2),
    Part.Circle(Vector(17.8, 21.2, 0), Vector(0, 0, 1), 2),
    Part.Circle(Vector(17.8, -21.2, 0), Vector(0, 0, 1), 2),
    Part.Circle(Vector(-17.8, -21.2, 0), Vector(0, 0, 1), 2),
], False)
sketch14.addConstraint([
    Sketcher.Constraint("Equal", 0, 1),
    Sketcher.Constraint("Equal", 1, 2),
    Sketcher.Constraint("Equal", 2, 3),
    Sketcher.Constraint("Symmetric", 0, 3, 2, 3, -1, 1),
    Sketcher.Constraint("Symmetric", 1, 3, 3, 3, -1, 1),
    Sketcher.Constraint("Symmetric", 0, 3, 1, 3, -2),
    Sketcher.Constraint("Diameter", 0, Q("4 mm")),
    Sketcher.Constraint("DistanceX", 0, 3, 1, 3, Q("35.5 mm")),
    Sketcher.Constraint("DistanceY", 2, 3, 1, 3, Q("42.5 mm")),
])
pocket6 = doc.addObject("PartDesign::Pocket", "Pocket005")
body.addObject(pocket6)
pocket6.Profile = sketch14
pocket6.Length = 4

doc.recompute()
